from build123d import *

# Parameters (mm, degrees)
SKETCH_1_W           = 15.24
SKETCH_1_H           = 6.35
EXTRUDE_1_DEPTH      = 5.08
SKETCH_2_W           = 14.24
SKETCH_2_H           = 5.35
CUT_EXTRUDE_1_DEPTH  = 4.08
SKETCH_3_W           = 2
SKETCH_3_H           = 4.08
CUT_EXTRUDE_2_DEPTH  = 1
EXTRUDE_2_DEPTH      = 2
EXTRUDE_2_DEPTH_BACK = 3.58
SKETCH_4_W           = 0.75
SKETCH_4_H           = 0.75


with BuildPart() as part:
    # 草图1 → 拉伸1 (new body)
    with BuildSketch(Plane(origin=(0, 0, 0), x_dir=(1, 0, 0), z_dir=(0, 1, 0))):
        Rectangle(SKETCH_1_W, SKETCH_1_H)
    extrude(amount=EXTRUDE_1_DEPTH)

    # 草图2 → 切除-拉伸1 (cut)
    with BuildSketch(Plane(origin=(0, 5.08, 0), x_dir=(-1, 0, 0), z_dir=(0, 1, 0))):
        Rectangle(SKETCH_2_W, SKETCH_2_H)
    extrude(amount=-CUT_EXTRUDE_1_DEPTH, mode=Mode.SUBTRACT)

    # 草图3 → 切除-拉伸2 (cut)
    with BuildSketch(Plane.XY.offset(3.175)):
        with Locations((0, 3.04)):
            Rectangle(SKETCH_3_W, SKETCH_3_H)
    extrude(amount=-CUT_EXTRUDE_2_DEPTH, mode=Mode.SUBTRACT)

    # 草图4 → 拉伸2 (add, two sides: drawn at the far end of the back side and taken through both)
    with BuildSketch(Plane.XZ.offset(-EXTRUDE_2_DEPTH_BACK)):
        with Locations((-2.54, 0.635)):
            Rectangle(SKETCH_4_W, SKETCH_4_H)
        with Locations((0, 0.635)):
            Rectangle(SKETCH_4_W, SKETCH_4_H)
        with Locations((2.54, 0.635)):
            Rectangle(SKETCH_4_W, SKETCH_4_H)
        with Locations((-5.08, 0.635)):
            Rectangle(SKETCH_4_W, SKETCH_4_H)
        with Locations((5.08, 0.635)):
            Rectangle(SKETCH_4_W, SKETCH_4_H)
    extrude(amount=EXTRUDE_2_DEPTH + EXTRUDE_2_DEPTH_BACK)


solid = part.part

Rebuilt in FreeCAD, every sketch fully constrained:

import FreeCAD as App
import Part
import Sketcher
Q = App.Units.Quantity

doc = App.newDocument("Part")
body = doc.addObject("PartDesign::Body", "Body")

# Sketch on XZ plane
sketch1 = body.newObject("Sketcher::SketchObject", "Sketch")
sketch1.AttachmentSupport = (doc.getObject("XZ_Plane"), [""])
sketch1.MapMode = "FlatFace"
sketch1.addGeometry([
    Part.LineSegment(App.Vector(-8, -3, 0), App.Vector(-8, 3, 0)),
    Part.LineSegment(App.Vector(-8, 3, 0), App.Vector(8, 3, 0)),
    Part.LineSegment(App.Vector(8, 3, 0), App.Vector(8, -3, 0)),
    Part.LineSegment(App.Vector(8, -3, 0), App.Vector(-8, -3, 0)),
], False)
sketch1.addConstraint([
    Sketcher.Constraint("Coincident", 0, 2, 1, 1),
    Sketcher.Constraint("Coincident", 1, 2, 2, 1),
    Sketcher.Constraint("Coincident", 2, 2, 3, 1),
    Sketcher.Constraint("Coincident", 3, 2, 0, 1),
    Sketcher.Constraint("Vertical", 0),
    Sketcher.Constraint("Horizontal", 1),
    Sketcher.Constraint("Vertical", 2),
    Sketcher.Constraint("Horizontal", 3),
    Sketcher.Constraint("Symmetric", 0, 2, 2, 2, -1, 1),
    Sketcher.Constraint("DistanceX", 1, 1, 1, 2, Q("0.6 in")),
    Sketcher.Constraint("DistanceY", 0, 1, 0, 2, Q("0.25 in")),
])
pad1 = body.newObject("PartDesign::Pad", "Pad")
pad1.Profile = sketch1
pad1.Length = Q("0.2 in")
pad1.Reversed = True

# Sketch on XZ plane
sketch2 = body.newObject("Sketcher::SketchObject", "Sketch001")
sketch2.AttachmentSupport = (doc.getObject("XZ_Plane"), [""])
sketch2.MapMode = "FlatFace"
sketch2.AttachmentOffset = App.Placement(App.Vector(0, 0, -0.2 * 25.4), App.Rotation())
sketch2.addGeometry([
    Part.LineSegment(App.Vector(7, 3, 0), App.Vector(7, -3, 0)),
    Part.LineSegment(App.Vector(7, -3, 0), App.Vector(-7, -3, 0)),
    Part.LineSegment(App.Vector(-7, -3, 0), App.Vector(-7, 3, 0)),
    Part.LineSegment(App.Vector(-7, 3, 0), App.Vector(7, 3, 0)),
], False)
sketch2.addConstraint([
    Sketcher.Constraint("Coincident", 0, 2, 1, 1),
    Sketcher.Constraint("Coincident", 1, 2, 2, 1),
    Sketcher.Constraint("Coincident", 2, 2, 3, 1),
    Sketcher.Constraint("Coincident", 3, 2, 0, 1),
    Sketcher.Constraint("Vertical", 0),
    Sketcher.Constraint("Horizontal", 1),
    Sketcher.Constraint("Vertical", 2),
    Sketcher.Constraint("Horizontal", 3),
    Sketcher.Constraint("Symmetric", 0, 2, 2, 2, -1, 1),
    Sketcher.Constraint("DistanceX", 1, 2, 1, 1, 14.24),
    Sketcher.Constraint("DistanceY", 0, 2, 0, 1, 5.35),
])
pocket1 = body.newObject("PartDesign::Pocket", "Pocket")
pocket1.Profile = sketch2
pocket1.Length = 4.08
pocket1.Reversed = True

# Sketch on XY plane
sketch3 = body.newObject("Sketcher::SketchObject", "Sketch002")
sketch3.AttachmentSupport = (doc.getObject("XY_Plane"), [""])
sketch3.MapMode = "FlatFace"
sketch3.AttachmentOffset = App.Placement(App.Vector(0, 0, 0.125 * 25.4), App.Rotation())
sketch3.addGeometry([
    Part.LineSegment(App.Vector(-1, 5.1, 0), App.Vector(-1, 1, 0)),
    Part.LineSegment(App.Vector(-1, 1, 0), App.Vector(1, 1, 0)),
    Part.LineSegment(App.Vector(1, 1, 0), App.Vector(1, 5.1, 0)),
    Part.LineSegment(App.Vector(1, 5.1, 0), App.Vector(-1, 5.1, 0)),
], False)
sketch3.addConstraint([
    Sketcher.Constraint("Coincident", 0, 2, 1, 1),
    Sketcher.Constraint("Coincident", 1, 2, 2, 1),
    Sketcher.Constraint("Coincident", 2, 2, 3, 1),
    Sketcher.Constraint("Coincident", 3, 2, 0, 1),
    Sketcher.Constraint("Vertical", 0),
    Sketcher.Constraint("Horizontal", 1),
    Sketcher.Constraint("Vertical", 2),
    Sketcher.Constraint("Horizontal", 3),
    Sketcher.Constraint("DistanceY", -1, 1, 2, 2, Q("0.2 in")),
    Sketcher.Constraint("DistanceX", 1, 1, 1, 2, 2.0),
    Sketcher.Constraint("DistanceY", 0, 2, 0, 1, 4.08),
    Sketcher.Constraint("DistanceX", 0, 2, -1, 1, 1.0),
])
pocket2 = body.newObject("PartDesign::Pocket", "Pocket001")
pocket2.Profile = sketch3
pocket2.Length = 1

# Sketch on XZ plane
sketch4 = body.newObject("Sketcher::SketchObject", "Sketch003")
sketch4.AttachmentSupport = (doc.getObject("XZ_Plane"), [""])
sketch4.MapMode = "FlatFace"
sketch4.addGeometry([
    Part.LineSegment(App.Vector(-2.9, 1, 0), App.Vector(-2.9, 0.3, 0)),  # 0
    Part.LineSegment(App.Vector(-2.9, 0.3, 0), App.Vector(-2.2, 0.3, 0)),  # 1
    Part.LineSegment(App.Vector(-2.2, 0.3, 0), App.Vector(-2.2, 1, 0)),  # 2
    Part.LineSegment(App.Vector(-2.2, 1, 0), App.Vector(-2.9, 1, 0)),  # 3
    Part.LineSegment(App.Vector(-0.4, 1, 0), App.Vector(-0.4, 0.3, 0)),  # 4
    Part.LineSegment(App.Vector(-0.4, 0.3, 0), App.Vector(0.4, 0.3, 0)),  # 5
    Part.LineSegment(App.Vector(0.4, 0.3, 0), App.Vector(0.4, 1, 0)),  # 6
    Part.LineSegment(App.Vector(0.4, 1, 0), App.Vector(-0.4, 1, 0)),  # 7
    Part.LineSegment(App.Vector(2.2, 1, 0), App.Vector(2.2, 0.3, 0)),  # 8
    Part.LineSegment(App.Vector(2.2, 0.3, 0), App.Vector(2.9, 0.3, 0)),  # 9
    Part.LineSegment(App.Vector(2.9, 0.3, 0), App.Vector(2.9, 1, 0)),  # 10
    Part.LineSegment(App.Vector(2.9, 1, 0), App.Vector(2.2, 1, 0)),  # 11
    Part.LineSegment(App.Vector(-5.5, 1, 0), App.Vector(-5.5, 0.3, 0)),  # 12
    Part.LineSegment(App.Vector(-5.5, 0.3, 0), App.Vector(-4.7, 0.3, 0)),  # 13
    Part.LineSegment(App.Vector(-4.7, 0.3, 0), App.Vector(-4.7, 1, 0)),  # 14
    Part.LineSegment(App.Vector(-4.7, 1, 0), App.Vector(-5.5, 1, 0)),  # 15
    Part.LineSegment(App.Vector(4.7, 1, 0), App.Vector(4.7, 0.3, 0)),  # 16
    Part.LineSegment(App.Vector(4.7, 0.3, 0), App.Vector(5.5, 0.3, 0)),  # 17
    Part.LineSegment(App.Vector(5.5, 0.3, 0), App.Vector(5.5, 1, 0)),  # 18
    Part.LineSegment(App.Vector(5.5, 1, 0), App.Vector(4.7, 1, 0)),  # 19
], False)
sketch4.addConstraint([
    Sketcher.Constraint("Coincident", 0, 2, 1, 1),
    Sketcher.Constraint("Coincident", 1, 2, 2, 1),
    Sketcher.Constraint("Coincident", 2, 2, 3, 1),
    Sketcher.Constraint("Coincident", 3, 2, 0, 1),
    Sketcher.Constraint("Coincident", 4, 2, 5, 1),
    Sketcher.Constraint("Coincident", 5, 2, 6, 1),
    Sketcher.Constraint("Coincident", 6, 2, 7, 1),
    Sketcher.Constraint("Coincident", 7, 2, 4, 1),
    Sketcher.Constraint("Coincident", 8, 2, 9, 1),
    Sketcher.Constraint("Coincident", 9, 2, 10, 1),
    Sketcher.Constraint("Coincident", 10, 2, 11, 1),
    Sketcher.Constraint("Coincident", 11, 2, 8, 1),
    Sketcher.Constraint("Coincident", 12, 2, 13, 1),
    Sketcher.Constraint("Coincident", 13, 2, 14, 1),
    Sketcher.Constraint("Coincident", 14, 2, 15, 1),
    Sketcher.Constraint("Coincident", 15, 2, 12, 1),
    Sketcher.Constraint("Coincident", 16, 2, 17, 1),
    Sketcher.Constraint("Coincident", 17, 2, 18, 1),
    Sketcher.Constraint("Coincident", 18, 2, 19, 1),
    Sketcher.Constraint("Coincident", 19, 2, 16, 1),
    Sketcher.Constraint("Vertical", 0),
    Sketcher.Constraint("Horizontal", 1),
    Sketcher.Constraint("Vertical", 2),
    Sketcher.Constraint("Horizontal", 3),
    Sketcher.Constraint("Vertical", 4),
    Sketcher.Constraint("Horizontal", 5),
    Sketcher.Constraint("Vertical", 6),
    Sketcher.Constraint("Horizontal", 7),
    Sketcher.Constraint("Vertical", 8),
    Sketcher.Constraint("Horizontal", 9),
    Sketcher.Constraint("Vertical", 10),
    Sketcher.Constraint("Horizontal", 11),
    Sketcher.Constraint("Vertical", 12),
    Sketcher.Constraint("Horizontal", 13),
    Sketcher.Constraint("Vertical", 14),
    Sketcher.Constraint("Horizontal", 15),
    Sketcher.Constraint("Vertical", 16),
    Sketcher.Constraint("Horizontal", 17),
    Sketcher.Constraint("Vertical", 18),
    Sketcher.Constraint("Horizontal", 19),
    Sketcher.Constraint("Symmetric", 1, 2, 8, 2, -2),
    Sketcher.Constraint("Symmetric", 3, 2, 10, 2, -2),
    Sketcher.Constraint("Symmetric", 13, 2, 16, 2, -2),
    Sketcher.Constraint("Symmetric", 15, 2, 18, 2, -2),
    Sketcher.Constraint("Horizontal", 1, 2, 4, 2),
    Sketcher.Constraint("Horizontal", 3, 2, 6, 2),
    Sketcher.Constraint("Horizontal", 9, 2, 12, 2),
    Sketcher.Constraint("Horizontal", 11, 2, 14, 2),
    Sketcher.Constraint("Equal", 3, 5),
    Sketcher.Constraint("Equal", 11, 13),
    Sketcher.Constraint("Equal", 19, 0),
    Sketcher.Constraint("DistanceX", 0, 2, 4, 2, Q("0.1 in")),
    Sketcher.Constraint("DistanceX", 4, 2, 8, 2, Q("0.1 in")),
    Sketcher.Constraint("DistanceX", 12, 2, 0, 2, Q("0.1 in")),
    Sketcher.Constraint("DistanceX", 1, 1, 1, 2, 0.75),
    Sketcher.Constraint("DistanceY", -1, 1, 0, 2, 0.26),
])
pad2 = body.newObject("PartDesign::Pad", "Pad001")
pad2.Profile = sketch4
pad2.Type = "TwoLengths"
pad2.Length = 2
pad2.Length2 = 3.58

doc.recompute()
